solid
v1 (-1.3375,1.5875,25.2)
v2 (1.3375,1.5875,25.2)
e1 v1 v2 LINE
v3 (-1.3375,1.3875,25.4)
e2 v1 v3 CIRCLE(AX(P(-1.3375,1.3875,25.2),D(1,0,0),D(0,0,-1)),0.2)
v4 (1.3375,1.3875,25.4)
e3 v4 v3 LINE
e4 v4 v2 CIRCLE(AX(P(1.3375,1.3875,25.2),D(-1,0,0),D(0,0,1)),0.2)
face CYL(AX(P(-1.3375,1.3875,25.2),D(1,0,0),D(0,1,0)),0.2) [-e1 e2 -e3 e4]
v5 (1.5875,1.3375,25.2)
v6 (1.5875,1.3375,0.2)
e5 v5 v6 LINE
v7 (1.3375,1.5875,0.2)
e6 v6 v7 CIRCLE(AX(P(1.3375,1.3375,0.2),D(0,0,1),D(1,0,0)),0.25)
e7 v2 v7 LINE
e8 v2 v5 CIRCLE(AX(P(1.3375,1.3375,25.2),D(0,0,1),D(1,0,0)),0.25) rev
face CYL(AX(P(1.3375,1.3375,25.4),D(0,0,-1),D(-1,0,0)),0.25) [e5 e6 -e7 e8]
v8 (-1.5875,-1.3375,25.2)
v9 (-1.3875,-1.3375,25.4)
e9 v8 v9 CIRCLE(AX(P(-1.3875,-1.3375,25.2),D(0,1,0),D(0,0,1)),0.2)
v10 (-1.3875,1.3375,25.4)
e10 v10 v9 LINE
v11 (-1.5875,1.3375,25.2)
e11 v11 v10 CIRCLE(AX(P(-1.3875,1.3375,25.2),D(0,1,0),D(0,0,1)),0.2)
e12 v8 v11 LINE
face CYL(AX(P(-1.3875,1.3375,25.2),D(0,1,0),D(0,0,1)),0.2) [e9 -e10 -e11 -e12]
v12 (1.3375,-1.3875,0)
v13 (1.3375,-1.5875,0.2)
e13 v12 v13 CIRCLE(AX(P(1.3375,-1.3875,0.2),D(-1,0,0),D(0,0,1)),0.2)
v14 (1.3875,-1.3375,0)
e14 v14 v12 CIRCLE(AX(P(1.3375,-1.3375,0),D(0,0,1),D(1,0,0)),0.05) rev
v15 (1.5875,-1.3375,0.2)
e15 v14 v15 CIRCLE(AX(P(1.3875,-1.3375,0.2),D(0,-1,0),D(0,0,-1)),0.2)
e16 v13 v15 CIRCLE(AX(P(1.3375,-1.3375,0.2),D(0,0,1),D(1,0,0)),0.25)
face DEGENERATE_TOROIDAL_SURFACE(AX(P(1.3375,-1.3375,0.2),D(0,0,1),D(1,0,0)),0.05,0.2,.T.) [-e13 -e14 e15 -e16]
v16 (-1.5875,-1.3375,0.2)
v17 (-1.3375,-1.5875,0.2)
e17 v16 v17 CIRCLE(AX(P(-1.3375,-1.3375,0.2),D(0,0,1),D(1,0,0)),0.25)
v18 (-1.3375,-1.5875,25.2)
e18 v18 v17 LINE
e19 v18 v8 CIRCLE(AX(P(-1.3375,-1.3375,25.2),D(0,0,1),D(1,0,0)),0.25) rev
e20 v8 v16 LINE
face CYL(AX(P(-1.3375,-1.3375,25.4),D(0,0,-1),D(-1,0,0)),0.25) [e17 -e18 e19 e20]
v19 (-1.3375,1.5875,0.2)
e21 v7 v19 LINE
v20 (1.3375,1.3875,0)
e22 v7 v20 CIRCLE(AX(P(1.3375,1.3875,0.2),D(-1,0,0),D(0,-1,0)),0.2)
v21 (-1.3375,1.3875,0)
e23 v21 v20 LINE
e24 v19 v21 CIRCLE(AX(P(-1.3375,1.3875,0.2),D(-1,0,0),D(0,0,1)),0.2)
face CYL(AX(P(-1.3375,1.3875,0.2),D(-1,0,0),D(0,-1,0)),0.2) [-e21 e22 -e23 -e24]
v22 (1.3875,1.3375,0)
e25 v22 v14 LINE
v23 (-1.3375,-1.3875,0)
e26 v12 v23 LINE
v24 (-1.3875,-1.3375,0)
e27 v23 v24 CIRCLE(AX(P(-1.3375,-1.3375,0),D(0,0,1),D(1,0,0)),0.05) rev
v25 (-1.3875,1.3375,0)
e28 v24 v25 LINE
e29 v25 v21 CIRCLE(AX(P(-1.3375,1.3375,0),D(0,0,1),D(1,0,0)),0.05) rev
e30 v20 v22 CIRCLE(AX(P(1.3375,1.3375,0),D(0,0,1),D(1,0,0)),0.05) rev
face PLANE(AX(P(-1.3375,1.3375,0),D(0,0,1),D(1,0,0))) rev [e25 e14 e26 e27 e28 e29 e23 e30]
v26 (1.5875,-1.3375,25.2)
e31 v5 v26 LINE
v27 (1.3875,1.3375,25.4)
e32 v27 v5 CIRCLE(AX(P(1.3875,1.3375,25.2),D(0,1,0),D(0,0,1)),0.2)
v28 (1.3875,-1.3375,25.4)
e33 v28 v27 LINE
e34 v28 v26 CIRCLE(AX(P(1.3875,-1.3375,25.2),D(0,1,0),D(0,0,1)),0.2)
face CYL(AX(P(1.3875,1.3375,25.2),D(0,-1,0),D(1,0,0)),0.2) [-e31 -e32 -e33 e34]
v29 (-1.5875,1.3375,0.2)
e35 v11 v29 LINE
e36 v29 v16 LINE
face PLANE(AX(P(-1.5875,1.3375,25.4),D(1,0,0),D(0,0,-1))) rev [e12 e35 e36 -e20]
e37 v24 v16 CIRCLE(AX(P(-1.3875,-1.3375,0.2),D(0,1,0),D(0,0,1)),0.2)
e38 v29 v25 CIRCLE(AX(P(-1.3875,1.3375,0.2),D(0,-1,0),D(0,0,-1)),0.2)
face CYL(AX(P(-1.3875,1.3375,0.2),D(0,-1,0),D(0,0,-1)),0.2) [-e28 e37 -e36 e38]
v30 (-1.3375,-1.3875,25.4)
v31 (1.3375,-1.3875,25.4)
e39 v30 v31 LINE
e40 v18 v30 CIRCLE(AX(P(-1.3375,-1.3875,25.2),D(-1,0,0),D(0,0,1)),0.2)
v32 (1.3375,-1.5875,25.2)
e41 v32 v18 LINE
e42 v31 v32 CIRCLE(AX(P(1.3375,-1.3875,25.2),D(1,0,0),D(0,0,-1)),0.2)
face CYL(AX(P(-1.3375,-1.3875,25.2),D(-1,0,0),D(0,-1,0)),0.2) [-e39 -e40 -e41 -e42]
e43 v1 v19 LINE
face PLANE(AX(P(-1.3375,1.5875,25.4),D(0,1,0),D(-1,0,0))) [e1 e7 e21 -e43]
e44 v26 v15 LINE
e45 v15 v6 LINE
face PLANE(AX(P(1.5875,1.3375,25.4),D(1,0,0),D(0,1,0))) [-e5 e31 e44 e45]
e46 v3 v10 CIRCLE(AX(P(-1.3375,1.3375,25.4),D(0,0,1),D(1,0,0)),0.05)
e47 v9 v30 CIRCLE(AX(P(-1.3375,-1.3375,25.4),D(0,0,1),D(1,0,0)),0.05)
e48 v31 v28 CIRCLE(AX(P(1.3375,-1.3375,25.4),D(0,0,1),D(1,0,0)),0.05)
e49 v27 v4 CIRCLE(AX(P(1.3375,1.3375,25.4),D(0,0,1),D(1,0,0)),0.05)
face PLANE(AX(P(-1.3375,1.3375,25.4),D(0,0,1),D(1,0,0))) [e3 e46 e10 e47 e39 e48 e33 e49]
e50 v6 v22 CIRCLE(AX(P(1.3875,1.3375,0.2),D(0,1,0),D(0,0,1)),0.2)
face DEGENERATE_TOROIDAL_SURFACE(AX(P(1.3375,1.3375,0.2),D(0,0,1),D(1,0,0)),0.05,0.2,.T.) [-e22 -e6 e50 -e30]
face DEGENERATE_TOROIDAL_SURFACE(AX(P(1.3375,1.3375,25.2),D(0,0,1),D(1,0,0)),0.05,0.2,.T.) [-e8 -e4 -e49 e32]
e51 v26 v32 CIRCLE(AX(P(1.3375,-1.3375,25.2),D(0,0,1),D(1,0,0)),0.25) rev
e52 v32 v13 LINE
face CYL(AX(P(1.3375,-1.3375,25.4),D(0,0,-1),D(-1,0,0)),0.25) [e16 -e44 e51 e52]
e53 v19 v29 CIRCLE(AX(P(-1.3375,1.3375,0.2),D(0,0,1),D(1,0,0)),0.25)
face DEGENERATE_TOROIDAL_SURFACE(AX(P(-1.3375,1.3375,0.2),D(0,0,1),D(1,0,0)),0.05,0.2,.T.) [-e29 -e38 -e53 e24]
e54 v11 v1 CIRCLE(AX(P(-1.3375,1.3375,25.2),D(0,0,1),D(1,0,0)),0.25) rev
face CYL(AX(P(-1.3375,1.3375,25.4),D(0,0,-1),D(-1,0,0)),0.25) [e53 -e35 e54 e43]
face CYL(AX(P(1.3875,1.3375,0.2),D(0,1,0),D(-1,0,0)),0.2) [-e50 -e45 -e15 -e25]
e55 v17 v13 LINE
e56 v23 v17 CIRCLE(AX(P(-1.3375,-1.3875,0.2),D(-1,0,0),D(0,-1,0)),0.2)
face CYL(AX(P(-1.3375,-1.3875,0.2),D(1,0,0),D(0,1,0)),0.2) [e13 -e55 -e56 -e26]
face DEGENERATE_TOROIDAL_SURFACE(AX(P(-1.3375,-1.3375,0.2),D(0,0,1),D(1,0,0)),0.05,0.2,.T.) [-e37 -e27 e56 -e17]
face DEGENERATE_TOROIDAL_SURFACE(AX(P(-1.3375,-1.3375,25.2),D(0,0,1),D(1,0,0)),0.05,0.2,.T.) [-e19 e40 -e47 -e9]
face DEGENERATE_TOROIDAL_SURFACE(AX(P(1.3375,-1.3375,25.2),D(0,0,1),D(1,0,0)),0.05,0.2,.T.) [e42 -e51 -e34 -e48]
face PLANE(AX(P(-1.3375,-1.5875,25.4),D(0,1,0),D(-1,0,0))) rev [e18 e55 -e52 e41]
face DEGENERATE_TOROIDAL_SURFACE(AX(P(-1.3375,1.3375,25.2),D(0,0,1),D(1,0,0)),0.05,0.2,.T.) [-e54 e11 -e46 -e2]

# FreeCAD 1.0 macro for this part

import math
import FreeCAD as App
import Part
import Sketcher
from FreeCAD import Vector
Q = App.Units.Quantity


def edges_at(feature, points):
    """Names of the edges that pass closest to the given points."""
    edges = feature.Shape.Edges
    near = lambda p: min(range(len(edges)), key=lambda i: edges[i].distToShape(Part.Vertex(*p))[0])
    return sorted({f"Edge{near(p) + 1}" for p in points})

doc = App.newDocument("Part")
body = doc.addObject("PartDesign::Body", "Body")

sketch1 = body.newObject("Sketcher::SketchObject", "Sketch")
sketch1.AttachmentSupport = (doc.getObject("XY_Plane"), [""])
sketch1.MapMode = "FlatFace"
sketch1.addGeometry([
    Part.LineSegment(Vector(1.3375, 1.5875, 0), Vector(-1.3375, 1.5875, 0)),
    Part.ArcOfCircle(Part.Circle(Vector(-1.3375, 1.3375, 0), Vector(0, 0, 1), 0.25), math.radians(90), math.radians(180)),
    Part.LineSegment(Vector(-1.5875, 1.3375, 0), Vector(-1.5875, -1.3375, 0)),
    Part.ArcOfCircle(Part.Circle(Vector(-1.3375, -1.3375, 0), Vector(0, 0, 1), 0.25), math.radians(-180), math.radians(-90)),
    Part.LineSegment(Vector(-1.3375, -1.5875, 0), Vector(1.3375, -1.5875, 0)),
    Part.ArcOfCircle(Part.Circle(Vector(1.3375, -1.3375, 0), Vector(0, 0, 1), 0.25), math.radians(-90), math.radians(0)),
    Part.LineSegment(Vector(1.5875, -1.3375, 0), Vector(1.5875, 1.3375, 0)),
    Part.ArcOfCircle(Part.Circle(Vector(1.3375, 1.3375, 0), Vector(0, 0, 1), 0.25), math.radians(0), math.radians(90)),
], False)
sketch1.addConstraint([
    Sketcher.Constraint("Tangent", 0, 2, 1, 1),
    Sketcher.Constraint("Tangent", 1, 2, 2, 1),
    Sketcher.Constraint("Tangent", 2, 2, 3, 1),
    Sketcher.Constraint("Tangent", 3, 2, 4, 1),
    Sketcher.Constraint("Tangent", 4, 2, 5, 1),
    Sketcher.Constraint("Tangent", 5, 2, 6, 1),
    Sketcher.Constraint("Tangent", 6, 2, 7, 1),
    Sketcher.Constraint("Tangent", 7, 2, 0, 1),
    Sketcher.Constraint("Horizontal", 0),
    Sketcher.Constraint("Vertical", 2),
    Sketcher.Constraint("Horizontal", 4),
    Sketcher.Constraint("Vertical", 6),
    Sketcher.Constraint("Equal", 1, 3),
    Sketcher.Constraint("Equal", 3, 5),
    Sketcher.Constraint("Equal", 5, 7),
    Sketcher.Constraint("Symmetric", 1, 3, 5, 3, -1, 1),
    Sketcher.Constraint("Equal", 4, 2),
    Sketcher.Constraint("Radius", 1, Q("0.25 mm")),
    Sketcher.Constraint("DistanceX", 0, 2, 0, 1, Q("2.675 mm")),
])
pad1 = body.newObject("PartDesign::Pad", "Pad")
pad1.Profile = sketch1
pad1.Length = 25.4
doc.recompute()

fillet = body.newObject("PartDesign::Fillet", "Fillet")
fillet.Base = (pad1, edges_at(pad1, [
    (-1.514, -1.514, 25.4),
    (-1.587, 0, 0),
    (-1.514, 1.514, 0),
    (0, -1.587, 25.4),
    (1.514, -1.514, 25.4),
    (1.587, 0, 25.4),
    (1.514, 1.514, 25.4),
    (0, 1.587, 25.4),
    (-1.514, 1.514, 25.4),
    (-1.587, 0, 25.4),
    (0, 1.587, 0),
    (1.514, 1.514, 0),
    (1.587, 0, 0),
    (1.514, -1.514, 0),
    (0, -1.587, 0),
    (-1.514, -1.514, 0),
]))
fillet.Radius = 0.2

doc.recompute()
